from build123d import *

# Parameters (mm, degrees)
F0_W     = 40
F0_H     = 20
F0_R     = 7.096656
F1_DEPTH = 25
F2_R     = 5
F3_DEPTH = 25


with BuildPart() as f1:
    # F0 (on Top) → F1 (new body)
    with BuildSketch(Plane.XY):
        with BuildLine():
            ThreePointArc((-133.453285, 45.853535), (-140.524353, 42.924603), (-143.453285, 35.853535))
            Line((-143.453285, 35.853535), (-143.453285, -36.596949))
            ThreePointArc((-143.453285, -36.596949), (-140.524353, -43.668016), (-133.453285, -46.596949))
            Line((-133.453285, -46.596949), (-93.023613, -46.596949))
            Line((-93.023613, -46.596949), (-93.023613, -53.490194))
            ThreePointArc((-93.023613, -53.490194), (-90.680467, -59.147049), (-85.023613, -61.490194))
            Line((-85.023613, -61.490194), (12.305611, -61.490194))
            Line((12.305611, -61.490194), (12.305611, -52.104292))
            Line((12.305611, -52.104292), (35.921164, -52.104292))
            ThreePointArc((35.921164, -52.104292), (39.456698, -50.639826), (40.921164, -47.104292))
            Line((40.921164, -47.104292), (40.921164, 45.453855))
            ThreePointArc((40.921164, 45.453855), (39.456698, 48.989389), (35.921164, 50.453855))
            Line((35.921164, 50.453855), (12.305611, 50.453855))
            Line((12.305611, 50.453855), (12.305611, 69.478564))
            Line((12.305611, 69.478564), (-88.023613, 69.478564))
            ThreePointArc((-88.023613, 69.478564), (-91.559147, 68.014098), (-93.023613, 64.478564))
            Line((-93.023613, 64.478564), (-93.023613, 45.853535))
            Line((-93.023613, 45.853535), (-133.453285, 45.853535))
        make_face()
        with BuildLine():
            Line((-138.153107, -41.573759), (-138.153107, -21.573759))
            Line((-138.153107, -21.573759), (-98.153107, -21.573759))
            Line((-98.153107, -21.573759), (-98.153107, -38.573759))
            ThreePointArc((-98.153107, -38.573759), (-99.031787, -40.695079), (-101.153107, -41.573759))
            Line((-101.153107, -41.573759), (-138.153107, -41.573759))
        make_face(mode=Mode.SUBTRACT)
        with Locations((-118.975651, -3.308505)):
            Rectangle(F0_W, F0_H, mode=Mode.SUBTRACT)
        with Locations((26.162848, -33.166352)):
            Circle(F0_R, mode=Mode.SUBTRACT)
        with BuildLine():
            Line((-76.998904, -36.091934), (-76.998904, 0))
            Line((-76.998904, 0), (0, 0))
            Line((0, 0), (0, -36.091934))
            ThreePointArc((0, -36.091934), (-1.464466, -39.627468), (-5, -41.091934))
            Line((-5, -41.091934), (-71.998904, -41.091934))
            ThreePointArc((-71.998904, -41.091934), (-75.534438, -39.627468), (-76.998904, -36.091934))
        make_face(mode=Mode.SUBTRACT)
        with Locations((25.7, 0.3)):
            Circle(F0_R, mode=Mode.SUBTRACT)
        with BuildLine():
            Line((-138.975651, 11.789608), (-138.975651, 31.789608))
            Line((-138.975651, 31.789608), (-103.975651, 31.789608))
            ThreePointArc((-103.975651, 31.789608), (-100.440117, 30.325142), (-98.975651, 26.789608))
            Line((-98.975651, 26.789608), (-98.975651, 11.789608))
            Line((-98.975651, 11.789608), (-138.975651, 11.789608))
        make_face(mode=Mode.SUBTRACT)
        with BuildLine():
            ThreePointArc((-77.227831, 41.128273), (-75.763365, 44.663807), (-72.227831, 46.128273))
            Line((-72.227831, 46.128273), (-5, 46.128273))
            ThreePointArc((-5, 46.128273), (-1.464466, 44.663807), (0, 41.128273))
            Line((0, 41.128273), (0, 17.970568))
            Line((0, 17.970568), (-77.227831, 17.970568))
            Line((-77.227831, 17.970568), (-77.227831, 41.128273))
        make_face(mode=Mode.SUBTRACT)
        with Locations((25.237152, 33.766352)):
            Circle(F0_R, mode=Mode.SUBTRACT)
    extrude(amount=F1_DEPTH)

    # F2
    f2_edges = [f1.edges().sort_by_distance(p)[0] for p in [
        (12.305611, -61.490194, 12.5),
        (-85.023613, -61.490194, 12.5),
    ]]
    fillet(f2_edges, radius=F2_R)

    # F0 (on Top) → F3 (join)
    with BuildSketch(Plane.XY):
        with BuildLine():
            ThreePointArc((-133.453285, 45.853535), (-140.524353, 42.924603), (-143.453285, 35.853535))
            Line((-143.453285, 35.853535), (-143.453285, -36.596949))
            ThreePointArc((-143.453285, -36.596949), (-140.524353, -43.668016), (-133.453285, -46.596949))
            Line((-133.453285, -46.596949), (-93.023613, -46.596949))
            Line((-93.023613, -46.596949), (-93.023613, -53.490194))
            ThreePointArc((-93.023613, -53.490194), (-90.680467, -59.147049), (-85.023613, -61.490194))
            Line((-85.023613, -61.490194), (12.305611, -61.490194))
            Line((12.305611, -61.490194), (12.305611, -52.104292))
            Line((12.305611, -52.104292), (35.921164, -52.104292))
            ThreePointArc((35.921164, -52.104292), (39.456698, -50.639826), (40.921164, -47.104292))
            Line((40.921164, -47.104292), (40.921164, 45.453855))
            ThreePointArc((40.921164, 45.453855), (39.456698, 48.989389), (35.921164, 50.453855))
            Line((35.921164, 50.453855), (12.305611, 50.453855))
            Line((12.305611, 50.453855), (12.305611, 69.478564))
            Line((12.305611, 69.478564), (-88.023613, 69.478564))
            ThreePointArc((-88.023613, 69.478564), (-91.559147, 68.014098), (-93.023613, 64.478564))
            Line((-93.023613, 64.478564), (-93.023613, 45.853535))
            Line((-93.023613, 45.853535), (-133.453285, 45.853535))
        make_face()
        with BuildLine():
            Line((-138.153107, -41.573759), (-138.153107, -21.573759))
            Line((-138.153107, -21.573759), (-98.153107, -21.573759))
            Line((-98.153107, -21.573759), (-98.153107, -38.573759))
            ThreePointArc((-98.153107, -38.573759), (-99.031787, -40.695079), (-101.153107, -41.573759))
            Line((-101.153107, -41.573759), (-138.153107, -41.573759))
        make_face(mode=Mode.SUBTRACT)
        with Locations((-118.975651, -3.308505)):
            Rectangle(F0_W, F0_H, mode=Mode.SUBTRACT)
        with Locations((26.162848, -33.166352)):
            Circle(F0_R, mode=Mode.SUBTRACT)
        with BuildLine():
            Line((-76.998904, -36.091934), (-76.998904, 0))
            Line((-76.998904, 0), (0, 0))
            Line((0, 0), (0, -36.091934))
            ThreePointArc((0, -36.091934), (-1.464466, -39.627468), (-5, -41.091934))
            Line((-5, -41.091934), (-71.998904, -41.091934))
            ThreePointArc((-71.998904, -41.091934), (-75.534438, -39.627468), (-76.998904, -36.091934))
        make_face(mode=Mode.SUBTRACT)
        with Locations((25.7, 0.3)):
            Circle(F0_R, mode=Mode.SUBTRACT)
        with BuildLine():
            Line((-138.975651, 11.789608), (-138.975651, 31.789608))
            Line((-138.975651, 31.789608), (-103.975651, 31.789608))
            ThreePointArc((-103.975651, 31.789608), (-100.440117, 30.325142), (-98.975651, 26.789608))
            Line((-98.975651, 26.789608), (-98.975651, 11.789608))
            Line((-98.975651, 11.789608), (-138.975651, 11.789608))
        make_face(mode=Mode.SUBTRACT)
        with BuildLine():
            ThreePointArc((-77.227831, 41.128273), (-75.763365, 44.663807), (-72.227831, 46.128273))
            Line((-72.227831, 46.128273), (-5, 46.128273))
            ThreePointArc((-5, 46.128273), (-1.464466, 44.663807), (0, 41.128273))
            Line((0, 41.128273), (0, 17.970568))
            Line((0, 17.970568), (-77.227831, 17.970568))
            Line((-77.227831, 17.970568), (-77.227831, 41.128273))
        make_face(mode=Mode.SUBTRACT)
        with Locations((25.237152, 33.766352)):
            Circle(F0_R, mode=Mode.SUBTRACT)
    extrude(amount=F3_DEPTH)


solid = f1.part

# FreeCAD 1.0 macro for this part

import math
import FreeCAD as App
import Part
import Sketcher
Q = App.Units.Quantity


def edges_at(feature, points):
    """Names of the edges that pass closest to the given points."""
    edges = feature.Shape.Edges
    near = lambda p: min(range(len(edges)), key=lambda i: edges[i].distToShape(Part.Vertex(*p))[0])
    return sorted({f"Edge{near(p) + 1}" for p in points})

doc = App.newDocument("Part")
body = doc.addObject("PartDesign::Body", "Body")

sketch1 = doc.addObject("Sketcher::SketchObject", "Sketch")
body.addObject(sketch1)
sketch1.AttachmentSupport = (doc.XY_Plane, [""])
sketch1.MapMode = "FlatFace"
sketch1.addGeometry(Part.ArcOfCircle(Part.Circle(App.Vector(-133.5, 35.9, 0), App.Vector(0, 0, 1), 10), math.radians(90), math.radians(180)), False)
sketch1.addGeometry(Part.LineSegment(App.Vector(-143.5, 35.9, 0), App.Vector(-143.5, -36.6, 0)), False)
sketch1.addGeometry(Part.ArcOfCircle(Part.Circle(App.Vector(-133.5, -36.6, 0), App.Vector(0, 0, 1), 10), math.radians(-180), math.radians(-90)), False)
sketch1.addGeometry(Part.LineSegment(App.Vector(-133.5, -46.6, 0), App.Vector(-93, -46.6, 0)), False)
sketch1.addGeometry(Part.LineSegment(App.Vector(-93, -46.6, 0), App.Vector(-93, -53.5, 0)), False)
sketch1.addGeometry(Part.ArcOfCircle(Part.Circle(App.Vector(-85, -53.5, 0), App.Vector(0, 0, 1), 8), math.radians(180), math.radians(270)), False)
sketch1.addGeometry(Part.LineSegment(App.Vector(-85, -61.5, 0), App.Vector(12.3, -61.5, 0)), False)
sketch1.addGeometry(Part.LineSegment(App.Vector(12.3, -61.5, 0), App.Vector(12.3, -52.1, 0)), False)
sketch1.addGeometry(Part.LineSegment(App.Vector(12.3, -52.1, 0), App.Vector(35.9, -52.1, 0)), False)
sketch1.addGeometry(Part.ArcOfCircle(Part.Circle(App.Vector(35.9, -47.1, 0), App.Vector(0, 0, 1), 5), math.radians(-90), math.radians(0)), False)
sketch1.addGeometry(Part.LineSegment(App.Vector(40.9, -47.1, 0), App.Vector(40.9, 45.5, 0)), False)
sketch1.addGeometry(Part.ArcOfCircle(Part.Circle(App.Vector(35.9, 45.5, 0), App.Vector(0, 0, 1), 5), math.radians(0), math.radians(90)), False)
sketch1.addGeometry(Part.LineSegment(App.Vector(35.9, 50.5, 0), App.Vector(12.3, 50.5, 0)), False)
sketch1.addGeometry(Part.LineSegment(App.Vector(12.3, 50.5, 0), App.Vector(12.3, 69.5, 0)), False)
sketch1.addGeometry(Part.LineSegment(App.Vector(12.3, 69.5, 0), App.Vector(-88, 69.5, 0)), False)
sketch1.addGeometry(Part.ArcOfCircle(Part.Circle(App.Vector(-88, 64.5, 0), App.Vector(0, 0, 1), 5), math.radians(90), math.radians(180)), False)
sketch1.addGeometry(Part.LineSegment(App.Vector(-93, 64.5, 0), App.Vector(-93, 45.9, 0)), False)
sketch1.addGeometry(Part.LineSegment(App.Vector(-93, 45.9, 0), App.Vector(-133.5, 45.9, 0)), False)
sketch1.addGeometry(Part.LineSegment(App.Vector(-101.2, -41.6, 0), App.Vector(-138.2, -41.6, 0)), False)
sketch1.addGeometry(Part.LineSegment(App.Vector(-138.2, -41.6, 0), App.Vector(-138.2, -21.6, 0)), False)
sketch1.addGeometry(Part.LineSegment(App.Vector(-138.2, -21.6, 0), App.Vector(-98.2, -21.6, 0)), False)
sketch1.addGeometry(Part.LineSegment(App.Vector(-98.2, -21.6, 0), App.Vector(-98.2, -38.6, 0)), False)
sketch1.addGeometry(Part.ArcOfCircle(Part.Circle(App.Vector(-101.2, -38.6, 0), App.Vector(0, 0, 1), 3), math.radians(-90), math.radians(0)), False)
sketch1.addGeometry(Part.LineSegment(App.Vector(-99, -13.3, 0), App.Vector(-139, -13.3, 0)), False)
sketch1.addGeometry(Part.LineSegment(App.Vector(-139, -13.3, 0), App.Vector(-139, 6.7, 0)), False)
sketch1.addGeometry(Part.LineSegment(App.Vector(-139, 6.7, 0), App.Vector(-99, 6.7, 0)), False)
sketch1.addGeometry(Part.LineSegment(App.Vector(-99, 6.7, 0), App.Vector(-99, -13.3, 0)), False)
sketch1.addGeometry(Part.ArcOfCircle(Part.Circle(App.Vector(-72, -36.1, 0), App.Vector(0, 0, 1), 5), math.radians(180), math.radians(270)), False)
sketch1.addGeometry(Part.LineSegment(App.Vector(-77, -36.1, 0), App.Vector(-77, 0, 0)), False)
sketch1.addGeometry(Part.LineSegment(App.Vector(-77, 0, 0), App.Vector(0, 0, 0)), False)
sketch1.addGeometry(Part.LineSegment(App.Vector(0, 0, 0), App.Vector(0, -36.1, 0)), False)
sketch1.addGeometry(Part.ArcOfCircle(Part.Circle(App.Vector(-5, -36.1, 0), App.Vector(0, 0, 1), 5), math.radians(-90), math.radians(0)), False)
sketch1.addGeometry(Part.LineSegment(App.Vector(-5, -41.1, 0), App.Vector(-72, -41.1, 0)), False)
sketch1.addGeometry(Part.Circle(App.Vector(26.2, -33.2, 0), App.Vector(0, 0, 1), 7.1), False)
sketch1.addGeometry(Part.Circle(App.Vector(25.7, 0.3, 0), App.Vector(0, 0, 1), 7.1), False)
sketch1.addGeometry(Part.LineSegment(App.Vector(-99, 11.8, 0), App.Vector(-139, 11.8, 0)), False)
sketch1.addGeometry(Part.LineSegment(App.Vector(-139, 11.8, 0), App.Vector(-139, 31.8, 0)), False)
sketch1.addGeometry(Part.LineSegment(App.Vector(-139, 31.8, 0), App.Vector(-104, 31.8, 0)), False)
sketch1.addGeometry(Part.ArcOfCircle(Part.Circle(App.Vector(-104, 26.8, 0), App.Vector(0, 0, 1), 5), math.radians(0), math.radians(90)), False)
sketch1.addGeometry(Part.LineSegment(App.Vector(-99, 26.8, 0), App.Vector(-99, 11.8, 0)), False)
sketch1.addGeometry(Part.LineSegment(App.Vector(-77.2, 18, 0), App.Vector(-77.2, 41.1, 0)), False)
sketch1.addGeometry(Part.ArcOfCircle(Part.Circle(App.Vector(-72.2, 41.1, 0), App.Vector(0, 0, 1), 5), math.radians(90), math.radians(180)), False)
sketch1.addGeometry(Part.LineSegment(App.Vector(-72.2, 46.1, 0), App.Vector(-5, 46.1, 0)), False)
sketch1.addGeometry(Part.ArcOfCircle(Part.Circle(App.Vector(-5, 41.1, 0), App.Vector(0, 0, 1), 5), math.radians(0), math.radians(90)), False)
sketch1.addGeometry(Part.LineSegment(App.Vector(0, 41.1, 0), App.Vector(0, 18, 0)), False)
sketch1.addGeometry(Part.LineSegment(App.Vector(0, 18, 0), App.Vector(-77.2, 18, 0)), False)
sketch1.addGeometry(Part.Circle(App.Vector(25.2, 33.8, 0), App.Vector(0, 0, 1), 7.1), False)
sketch1.addConstraint(Sketcher.Constraint("Tangent", 0, 2, 1, 1))
sketch1.addConstraint(Sketcher.Constraint("Tangent", 1, 2, 2, 1))
sketch1.addConstraint(Sketcher.Constraint("Tangent", 2, 2, 3, 1))
sketch1.addConstraint(Sketcher.Constraint("Coincident", 3, 2, 4, 1))
sketch1.addConstraint(Sketcher.Constraint("Tangent", 4, 2, 5, 1))
sketch1.addConstraint(Sketcher.Constraint("Tangent", 5, 2, 6, 1))
sketch1.addConstraint(Sketcher.Constraint("Coincident", 6, 2, 7, 1))
sketch1.addConstraint(Sketcher.Constraint("Coincident", 7, 2, 8, 1))
sketch1.addConstraint(Sketcher.Constraint("Tangent", 8, 2, 9, 1))
sketch1.addConstraint(Sketcher.Constraint("Tangent", 9, 2, 10, 1))
sketch1.addConstraint(Sketcher.Constraint("Tangent", 10, 2, 11, 1))
sketch1.addConstraint(Sketcher.Constraint("Tangent", 11, 2, 12, 1))
sketch1.addConstraint(Sketcher.Constraint("Coincident", 12, 2, 13, 1))
sketch1.addConstraint(Sketcher.Constraint("Coincident", 13, 2, 14, 1))
sketch1.addConstraint(Sketcher.Constraint("Tangent", 14, 2, 15, 1))
sketch1.addConstraint(Sketcher.Constraint("Tangent", 15, 2, 16, 1))
sketch1.addConstraint(Sketcher.Constraint("Coincident", 16, 2, 17, 1))
sketch1.addConstraint(Sketcher.Constraint("Tangent", 17, 2, 0, 1))
sketch1.addConstraint(Sketcher.Constraint("Coincident", 18, 2, 19, 1))
sketch1.addConstraint(Sketcher.Constraint("Coincident", 19, 2, 20, 1))
sketch1.addConstraint(Sketcher.Constraint("Coincident", 20, 2, 21, 1))
sketch1.addConstraint(Sketcher.Constraint("Tangent", 21, 2, 22, 2))
sketch1.addConstraint(Sketcher.Constraint("Tangent", 22, 1, 18, 1))
sketch1.addConstraint(Sketcher.Constraint("Coincident", 23, 2, 24, 1))
sketch1.addConstraint(Sketcher.Constraint("Coincident", 24, 2, 25, 1))
sketch1.addConstraint(Sketcher.Constraint("Coincident", 25, 2, 26, 1))
sketch1.addConstraint(Sketcher.Constraint("Coincident", 26, 2, 23, 1))
sketch1.addConstraint(Sketcher.Constraint("Tangent", 27, 1, 28, 1))
sketch1.addConstraint(Sketcher.Constraint("Coincident", 28, 2, 29, 1))
sketch1.addConstraint(Sketcher.Constraint("Coincident", 29, 2, 30, 1))
sketch1.addConstraint(Sketcher.Constraint("Tangent", 30, 2, 31, 2))
sketch1.addConstraint(Sketcher.Constraint("Tangent", 31, 1, 32, 1))
sketch1.addConstraint(Sketcher.Constraint("Tangent", 32, 2, 27, 2))
sketch1.addConstraint(Sketcher.Constraint("Coincident", 35, 2, 36, 1))
sketch1.addConstraint(Sketcher.Constraint("Coincident", 36, 2, 37, 1))
sketch1.addConstraint(Sketcher.Constraint("Tangent", 37, 2, 38, 2))
sketch1.addConstraint(Sketcher.Constraint("Tangent", 38, 1, 39, 1))
sketch1.addConstraint(Sketcher.Constraint("Coincident", 39, 2, 35, 1))
sketch1.addConstraint(Sketcher.Constraint("Tangent", 40, 2, 41, 2))
sketch1.addConstraint(Sketcher.Constraint("Tangent", 41, 1, 42, 1))
sketch1.addConstraint(Sketcher.Constraint("Tangent", 42, 2, 43, 2))
sketch1.addConstraint(Sketcher.Constraint("Tangent", 43, 1, 44, 1))
sketch1.addConstraint(Sketcher.Constraint("Coincident", 44, 2, 45, 1))
sketch1.addConstraint(Sketcher.Constraint("Coincident", 45, 2, 40, 1))
sketch1.addConstraint(Sketcher.Constraint("Vertical", 1))
sketch1.addConstraint(Sketcher.Constraint("Horizontal", 3))
sketch1.addConstraint(Sketcher.Constraint("Vertical", 4))
sketch1.addConstraint(Sketcher.Constraint("Horizontal", 6))
sketch1.addConstraint(Sketcher.Constraint("Vertical", 7))
sketch1.addConstraint(Sketcher.Constraint("Horizontal", 8))
sketch1.addConstraint(Sketcher.Constraint("Vertical", 10))
sketch1.addConstraint(Sketcher.Constraint("Horizontal", 12))
sketch1.addConstraint(Sketcher.Constraint("Vertical", 13))
sketch1.addConstraint(Sketcher.Constraint("Horizontal", 14))
sketch1.addConstraint(Sketcher.Constraint("Vertical", 16))
sketch1.addConstraint(Sketcher.Constraint("Horizontal", 17))
sketch1.addConstraint(Sketcher.Constraint("Horizontal", 18))
sketch1.addConstraint(Sketcher.Constraint("Vertical", 19))
sketch1.addConstraint(Sketcher.Constraint("Horizontal", 20))
sketch1.addConstraint(Sketcher.Constraint("Vertical", 21))
sketch1.addConstraint(Sketcher.Constraint("Horizontal", 23))
sketch1.addConstraint(Sketcher.Constraint("Vertical", 24))
sketch1.addConstraint(Sketcher.Constraint("Horizontal", 25))
sketch1.addConstraint(Sketcher.Constraint("Vertical", 26))
sketch1.addConstraint(Sketcher.Constraint("Vertical", 28))
sketch1.addConstraint(Sketcher.Constraint("Horizontal", 29))
sketch1.addConstraint(Sketcher.Constraint("Vertical", 30))
sketch1.addConstraint(Sketcher.Constraint("Horizontal", 32))
sketch1.addConstraint(Sketcher.Constraint("Horizontal", 35))
sketch1.addConstraint(Sketcher.Constraint("Vertical", 36))
sketch1.addConstraint(Sketcher.Constraint("Horizontal", 37))
sketch1.addConstraint(Sketcher.Constraint("Vertical", 39))
sketch1.addConstraint(Sketcher.Constraint("Vertical", 40))
sketch1.addConstraint(Sketcher.Constraint("Horizontal", 42))
sketch1.addConstraint(Sketcher.Constraint("Vertical", 44))
sketch1.addConstraint(Sketcher.Constraint("Horizontal", 45))
sketch1.addConstraint(Sketcher.Constraint("Coincident", 29, 2, -1, 1))
sketch1.addConstraint(Sketcher.Constraint("Equal", 0, 2))
sketch1.addConstraint(Sketcher.Constraint("Equal", 9, 11))
sketch1.addConstraint(Sketcher.Constraint("Equal", 11, 15))
sketch1.addConstraint(Sketcher.Constraint("Equal", 15, 27))
sketch1.addConstraint(Sketcher.Constraint("Equal", 27, 31))
sketch1.addConstraint(Sketcher.Constraint("Equal", 33, 34))
sketch1.addConstraint(Sketcher.Constraint("Equal", 31, 38))
sketch1.addConstraint(Sketcher.Constraint("Equal", 38, 41))
sketch1.addConstraint(Sketcher.Constraint("Equal", 41, 43))
sketch1.addConstraint(Sketcher.Constraint("Equal", 34, 46))
sketch1.addConstraint(Sketcher.Constraint("PointOnObject", 43, 1, -2))
sketch1.addConstraint(Sketcher.Constraint("Vertical", 7, 2, 12, 2))
sketch1.addConstraint(Sketcher.Constraint("Vertical", 4, 2, 15, 2))
sketch1.addConstraint(Sketcher.Constraint("Vertical", 24, 2, 35, 2))
sketch1.addConstraint(Sketcher.Constraint("Vertical", 26, 2, 38, 1))
sketch1.addConstraint(Sketcher.Constraint("Equal", 20, 23))
sketch1.addConstraint(Sketcher.Constraint("Equal", 19, 24))
sketch1.addConstraint(Sketcher.Constraint("Equal", 26, 36))
sketch1.addConstraint(Sketcher.Constraint("Radius", 0, Q("9.999999 mm")))
sketch1.addConstraint(Sketcher.Constraint("Radius", 5, Q("7.999999 mm")))
sketch1.addConstraint(Sketcher.Constraint("Radius", 9, Q("5 mm")))
sketch1.addConstraint(Sketcher.Constraint("Radius", 22, Q("3.000001 mm")))
sketch1.addConstraint(Sketcher.Constraint("DistanceX", 18, 2, 18, 1, Q("37 mm")))
sketch1.addConstraint(Sketcher.Constraint("DistanceY", 19, 1, 19, 2, Q("20 mm")))
sketch1.addConstraint(Sketcher.Constraint("DistanceX", -1, 1, 34, 3, Q("25.7 mm")))
sketch1.addConstraint(Sketcher.Constraint("DistanceY", -1, 1, 34, 3, Q("0.3 mm")))
sketch1.addConstraint(Sketcher.Constraint("Diameter", 33, Q("14.193312 mm")))
sketch1.addConstraint(Sketcher.Constraint("DistanceX", 3, 1, 3, 2, Q("40.429672 mm")))
sketch1.addConstraint(Sketcher.Constraint("DistanceX", 42, 1, 42, 2, Q("67.227831 mm")))
sketch1.addConstraint(Sketcher.Constraint("DistanceY", 13, 1, 13, 2, Q("19.024709 mm")))
sketch1.addConstraint(Sketcher.Constraint("DistanceY", 16, 2, 16, 1, Q("18.625029 mm")))
sketch1.addConstraint(Sketcher.Constraint("DistanceY", 27, 3, 15, 3, Q("100.570499 mm")))
sketch1.addConstraint(Sketcher.Constraint("DistanceY", 6, 2, 9, 3, Q("14.385902 mm")))
sketch1.addConstraint(Sketcher.Constraint("DistanceX", 6, 1, 6, 2, Q("97.329224 mm")))
sketch1.addConstraint(Sketcher.Constraint("DistanceX", 8, 1, 8, 2, Q("23.615553 mm")))
sketch1.addConstraint(Sketcher.Constraint("DistanceX", 29, 1, 29, 2, Q("76.998904 mm")))
sketch1.addConstraint(Sketcher.Constraint("DistanceY", 1, 2, 1, 1, Q("72.450484 mm")))
sketch1.addConstraint(Sketcher.Constraint("DistanceY", 4, 2, 4, 1, Q("6.893245 mm")))
sketch1.addConstraint(Sketcher.Constraint("DistanceY", 28, 1, 28, 2, Q("36.091934 mm")))
sketch1.addConstraint(Sketcher.Constraint("DistanceY", 40, 1, 40, 2, Q("23.157705 mm")))
sketch1.addConstraint(Sketcher.Constraint("DistanceX", 22, 3, -1, 1, Q("101.153108 mm")))
sketch1.addConstraint(Sketcher.Constraint("DistanceX", -1, 1, 33, 3, Q("26.162848 mm")))
sketch1.addConstraint(Sketcher.Constraint("DistanceX", 38, 3, -1, 1, Q("103.975651 mm")))
sketch1.addConstraint(Sketcher.Constraint("DistanceY", -1, 1, 38, 3, Q("26.789608 mm")))
sketch1.addConstraint(Sketcher.Constraint("DistanceX", -1, 1, 46, 3, Q("25.237152 mm")))
sketch1.addConstraint(Sketcher.Constraint("DistanceY", -1, 1, 46, 3, Q("33.766352 mm")))
sketch1.addConstraint(Sketcher.Constraint("DistanceX", -1, 1, 6, 2, Q("12.305611 mm")))
sketch1.addConstraint(Sketcher.Constraint("DistanceY", 18, 2, -1, 1, Q("41.573759 mm")))
sketch1.addConstraint(Sketcher.Constraint("DistanceY", -1, 1, 44, 2, Q("17.970568 mm")))
sketch1.addConstraint(Sketcher.Constraint("DistanceY", 9, 3, 33, 3, Q("13.93794 mm")))
sketch1.addConstraint(Sketcher.Constraint("DistanceY", 24, 2, 0, 2, Q("29.16204 mm")))
pad1 = doc.addObject("PartDesign::Pad", "Pad")
body.addObject(pad1)
pad1.Profile = sketch1
pad1.Length = 25
doc.recompute()

fillet = doc.addObject("PartDesign::Fillet", "Fillet")
body.addObject(fillet)
fillet.Base = (pad1, edges_at(pad1, [(12.306, -61.49, 12.5), (-85.024, -61.49, 12.5)]))
fillet.Radius = 5

sketch2 = doc.addObject("Sketcher::SketchObject", "Sketch001")
body.addObject(sketch2)
sketch2.AttachmentSupport = (doc.XY_Plane, [""])
sketch2.MapMode = "FlatFace"
sketch2.addGeometry(Part.ArcOfCircle(Part.Circle(App.Vector(-133.5, 35.9, 0), App.Vector(0, 0, 1), 10), math.radians(90), math.radians(180)), False)
sketch2.addGeometry(Part.LineSegment(App.Vector(-143.5, 35.9, 0), App.Vector(-143.5, -36.6, 0)), False)
sketch2.addGeometry(Part.ArcOfCircle(Part.Circle(App.Vector(-133.5, -36.6, 0), App.Vector(0, 0, 1), 10), math.radians(-180), math.radians(-90)), False)
sketch2.addGeometry(Part.LineSegment(App.Vector(-133.5, -46.6, 0), App.Vector(-93, -46.6, 0)), False)
sketch2.addGeometry(Part.LineSegment(App.Vector(-93, -46.6, 0), App.Vector(-93, -53.5, 0)), False)
sketch2.addGeometry(Part.ArcOfCircle(Part.Circle(App.Vector(-85, -53.5, 0), App.Vector(0, 0, 1), 8), math.radians(180), math.radians(270)), False)
sketch2.addGeometry(Part.LineSegment(App.Vector(-85, -61.5, 0), App.Vector(12.3, -61.5, 0)), False)
sketch2.addGeometry(Part.LineSegment(App.Vector(12.3, -61.5, 0), App.Vector(12.3, -52.1, 0)), False)
sketch2.addGeometry(Part.LineSegment(App.Vector(12.3, -52.1, 0), App.Vector(35.9, -52.1, 0)), False)
sketch2.addGeometry(Part.ArcOfCircle(Part.Circle(App.Vector(35.9, -47.1, 0), App.Vector(0, 0, 1), 5), math.radians(-90), math.radians(0)), False)
sketch2.addGeometry(Part.LineSegment(App.Vector(40.9, -47.1, 0), App.Vector(40.9, 45.5, 0)), False)
sketch2.addGeometry(Part.ArcOfCircle(Part.Circle(App.Vector(35.9, 45.5, 0), App.Vector(0, 0, 1), 5), math.radians(0), math.radians(90)), False)
sketch2.addGeometry(Part.LineSegment(App.Vector(35.9, 50.5, 0), App.Vector(12.3, 50.5, 0)), False)
sketch2.addGeometry(Part.LineSegment(App.Vector(12.3, 50.5, 0), App.Vector(12.3, 69.5, 0)), False)
sketch2.addGeometry(Part.LineSegment(App.Vector(12.3, 69.5, 0), App.Vector(-88, 69.5, 0)), False)
sketch2.addGeometry(Part.ArcOfCircle(Part.Circle(App.Vector(-88, 64.5, 0), App.Vector(0, 0, 1), 5), math.radians(90), math.radians(180)), False)
sketch2.addGeometry(Part.LineSegment(App.Vector(-93, 64.5, 0), App.Vector(-93, 45.9, 0)), False)
sketch2.addGeometry(Part.LineSegment(App.Vector(-93, 45.9, 0), App.Vector(-133.5, 45.9, 0)), False)
sketch2.addGeometry(Part.LineSegment(App.Vector(-101.2, -41.6, 0), App.Vector(-138.2, -41.6, 0)), False)
sketch2.addGeometry(Part.LineSegment(App.Vector(-138.2, -41.6, 0), App.Vector(-138.2, -21.6, 0)), False)
sketch2.addGeometry(Part.LineSegment(App.Vector(-138.2, -21.6, 0), App.Vector(-98.2, -21.6, 0)), False)
sketch2.addGeometry(Part.LineSegment(App.Vector(-98.2, -21.6, 0), App.Vector(-98.2, -38.6, 0)), False)
sketch2.addGeometry(Part.ArcOfCircle(Part.Circle(App.Vector(-101.2, -38.6, 0), App.Vector(0, 0, 1), 3), math.radians(-90), math.radians(0)), False)
sketch2.addGeometry(Part.LineSegment(App.Vector(-99, -13.3, 0), App.Vector(-139, -13.3, 0)), False)
sketch2.addGeometry(Part.LineSegment(App.Vector(-139, -13.3, 0), App.Vector(-139, 6.7, 0)), False)
sketch2.addGeometry(Part.LineSegment(App.Vector(-139, 6.7, 0), App.Vector(-99, 6.7, 0)), False)
sketch2.addGeometry(Part.LineSegment(App.Vector(-99, 6.7, 0), App.Vector(-99, -13.3, 0)), False)
sketch2.addGeometry(Part.ArcOfCircle(Part.Circle(App.Vector(-72, -36.1, 0), App.Vector(0, 0, 1), 5), math.radians(180), math.radians(270)), False)
sketch2.addGeometry(Part.LineSegment(App.Vector(-77, -36.1, 0), App.Vector(-77, 0, 0)), False)
sketch2.addGeometry(Part.LineSegment(App.Vector(-77, 0, 0), App.Vector(0, 0, 0)), False)
sketch2.addGeometry(Part.LineSegment(App.Vector(0, 0, 0), App.Vector(0, -36.1, 0)), False)
sketch2.addGeometry(Part.ArcOfCircle(Part.Circle(App.Vector(-5, -36.1, 0), App.Vector(0, 0, 1), 5), math.radians(-90), math.radians(0)), False)
sketch2.addGeometry(Part.LineSegment(App.Vector(-5, -41.1, 0), App.Vector(-72, -41.1, 0)), False)
sketch2.addGeometry(Part.Circle(App.Vector(26.2, -33.2, 0), App.Vector(0, 0, 1), 7.1), False)
sketch2.addGeometry(Part.Circle(App.Vector(25.7, 0.3, 0), App.Vector(0, 0, 1), 7.1), False)
sketch2.addGeometry(Part.LineSegment(App.Vector(-99, 11.8, 0), App.Vector(-139, 11.8, 0)), False)
sketch2.addGeometry(Part.LineSegment(App.Vector(-139, 11.8, 0), App.Vector(-139, 31.8, 0)), False)
sketch2.addGeometry(Part.LineSegment(App.Vector(-139, 31.8, 0), App.Vector(-104, 31.8, 0)), False)
sketch2.addGeometry(Part.ArcOfCircle(Part.Circle(App.Vector(-104, 26.8, 0), App.Vector(0, 0, 1), 5), math.radians(0), math.radians(90)), False)
sketch2.addGeometry(Part.LineSegment(App.Vector(-99, 26.8, 0), App.Vector(-99, 11.8, 0)), False)
sketch2.addGeometry(Part.LineSegment(App.Vector(-77.2, 18, 0), App.Vector(-77.2, 41.1, 0)), False)
sketch2.addGeometry(Part.ArcOfCircle(Part.Circle(App.Vector(-72.2, 41.1, 0), App.Vector(0, 0, 1), 5), math.radians(90), math.radians(180)), False)
sketch2.addGeometry(Part.LineSegment(App.Vector(-72.2, 46.1, 0), App.Vector(-5, 46.1, 0)), False)
sketch2.addGeometry(Part.ArcOfCircle(Part.Circle(App.Vector(-5, 41.1, 0), App.Vector(0, 0, 1), 5), math.radians(0), math.radians(90)), False)
sketch2.addGeometry(Part.LineSegment(App.Vector(0, 41.1, 0), App.Vector(0, 18, 0)), False)
sketch2.addGeometry(Part.LineSegment(App.Vector(0, 18, 0), App.Vector(-77.2, 18, 0)), False)
sketch2.addGeometry(Part.Circle(App.Vector(25.2, 33.8, 0), App.Vector(0, 0, 1), 7.1), False)
sketch2.addConstraint(Sketcher.Constraint("Tangent", 0, 2, 1, 1))
sketch2.addConstraint(Sketcher.Constraint("Tangent", 1, 2, 2, 1))
sketch2.addConstraint(Sketcher.Constraint("Tangent", 2, 2, 3, 1))
sketch2.addConstraint(Sketcher.Constraint("Coincident", 3, 2, 4, 1))
sketch2.addConstraint(Sketcher.Constraint("Tangent", 4, 2, 5, 1))
sketch2.addConstraint(Sketcher.Constraint("Tangent", 5, 2, 6, 1))
sketch2.addConstraint(Sketcher.Constraint("Coincident", 6, 2, 7, 1))
sketch2.addConstraint(Sketcher.Constraint("Coincident", 7, 2, 8, 1))
sketch2.addConstraint(Sketcher.Constraint("Tangent", 8, 2, 9, 1))
sketch2.addConstraint(Sketcher.Constraint("Tangent", 9, 2, 10, 1))
sketch2.addConstraint(Sketcher.Constraint("Tangent", 10, 2, 11, 1))
sketch2.addConstraint(Sketcher.Constraint("Tangent", 11, 2, 12, 1))
sketch2.addConstraint(Sketcher.Constraint("Coincident", 12, 2, 13, 1))
sketch2.addConstraint(Sketcher.Constraint("Coincident", 13, 2, 14, 1))
sketch2.addConstraint(Sketcher.Constraint("Tangent", 14, 2, 15, 1))
sketch2.addConstraint(Sketcher.Constraint("Tangent", 15, 2, 16, 1))
sketch2.addConstraint(Sketcher.Constraint("Coincident", 16, 2, 17, 1))
sketch2.addConstraint(Sketcher.Constraint("Tangent", 17, 2, 0, 1))
sketch2.addConstraint(Sketcher.Constraint("Coincident", 18, 2, 19, 1))
sketch2.addConstraint(Sketcher.Constraint("Coincident", 19, 2, 20, 1))
sketch2.addConstraint(Sketcher.Constraint("Coincident", 20, 2, 21, 1))
sketch2.addConstraint(Sketcher.Constraint("Tangent", 21, 2, 22, 2))
sketch2.addConstraint(Sketcher.Constraint("Tangent", 22, 1, 18, 1))
sketch2.addConstraint(Sketcher.Constraint("Coincident", 23, 2, 24, 1))
sketch2.addConstraint(Sketcher.Constraint("Coincident", 24, 2, 25, 1))
sketch2.addConstraint(Sketcher.Constraint("Coincident", 25, 2, 26, 1))
sketch2.addConstraint(Sketcher.Constraint("Coincident", 26, 2, 23, 1))
sketch2.addConstraint(Sketcher.Constraint("Tangent", 27, 1, 28, 1))
sketch2.addConstraint(Sketcher.Constraint("Coincident", 28, 2, 29, 1))
sketch2.addConstraint(Sketcher.Constraint("Coincident", 29, 2, 30, 1))
sketch2.addConstraint(Sketcher.Constraint("Tangent", 30, 2, 31, 2))
sketch2.addConstraint(Sketcher.Constraint("Tangent", 31, 1, 32, 1))
sketch2.addConstraint(Sketcher.Constraint("Tangent", 32, 2, 27, 2))
sketch2.addConstraint(Sketcher.Constraint("Coincident", 35, 2, 36, 1))
sketch2.addConstraint(Sketcher.Constraint("Coincident", 36, 2, 37, 1))
sketch2.addConstraint(Sketcher.Constraint("Tangent", 37, 2, 38, 2))
sketch2.addConstraint(Sketcher.Constraint("Tangent", 38, 1, 39, 1))
sketch2.addConstraint(Sketcher.Constraint("Coincident", 39, 2, 35, 1))
sketch2.addConstraint(Sketcher.Constraint("Tangent", 40, 2, 41, 2))
sketch2.addConstraint(Sketcher.Constraint("Tangent", 41, 1, 42, 1))
sketch2.addConstraint(Sketcher.Constraint("Tangent", 42, 2, 43, 2))
sketch2.addConstraint(Sketcher.Constraint("Tangent", 43, 1, 44, 1))
sketch2.addConstraint(Sketcher.Constraint("Coincident", 44, 2, 45, 1))
sketch2.addConstraint(Sketcher.Constraint("Coincident", 45, 2, 40, 1))
sketch2.addConstraint(Sketcher.Constraint("Vertical", 1))
sketch2.addConstraint(Sketcher.Constraint("Horizontal", 3))
sketch2.addConstraint(Sketcher.Constraint("Vertical", 4))
sketch2.addConstraint(Sketcher.Constraint("Horizontal", 6))
sketch2.addConstraint(Sketcher.Constraint("Vertical", 7))
sketch2.addConstraint(Sketcher.Constraint("Horizontal", 8))
sketch2.addConstraint(Sketcher.Constraint("Vertical", 10))
sketch2.addConstraint(Sketcher.Constraint("Horizontal", 12))
sketch2.addConstraint(Sketcher.Constraint("Vertical", 13))
sketch2.addConstraint(Sketcher.Constraint("Horizontal", 14))
sketch2.addConstraint(Sketcher.Constraint("Vertical", 16))
sketch2.addConstraint(Sketcher.Constraint("Horizontal", 17))
sketch2.addConstraint(Sketcher.Constraint("Horizontal", 18))
sketch2.addConstraint(Sketcher.Constraint("Vertical", 19))
sketch2.addConstraint(Sketcher.Constraint("Horizontal", 20))
sketch2.addConstraint(Sketcher.Constraint("Vertical", 21))
sketch2.addConstraint(Sketcher.Constraint("Horizontal", 23))
sketch2.addConstraint(Sketcher.Constraint("Vertical", 24))
sketch2.addConstraint(Sketcher.Constraint("Horizontal", 25))
sketch2.addConstraint(Sketcher.Constraint("Vertical", 26))
sketch2.addConstraint(Sketcher.Constraint("Vertical", 28))
sketch2.addConstraint(Sketcher.Constraint("Horizontal", 29))
sketch2.addConstraint(Sketcher.Constraint("Vertical", 30))
sketch2.addConstraint(Sketcher.Constraint("Horizontal", 32))
sketch2.addConstraint(Sketcher.Constraint("Horizontal", 35))
sketch2.addConstraint(Sketcher.Constraint("Vertical", 36))
sketch2.addConstraint(Sketcher.Constraint("Horizontal", 37))
sketch2.addConstraint(Sketcher.Constraint("Vertical", 39))
sketch2.addConstraint(Sketcher.Constraint("Vertical", 40))
sketch2.addConstraint(Sketcher.Constraint("Horizontal", 42))
sketch2.addConstraint(Sketcher.Constraint("Vertical", 44))
sketch2.addConstraint(Sketcher.Constraint("Horizontal", 45))
sketch2.addConstraint(Sketcher.Constraint("Coincident", 29, 2, -1, 1))
sketch2.addConstraint(Sketcher.Constraint("Equal", 0, 2))
sketch2.addConstraint(Sketcher.Constraint("Equal", 9, 11))
sketch2.addConstraint(Sketcher.Constraint("Equal", 11, 15))
sketch2.addConstraint(Sketcher.Constraint("Equal", 15, 27))
sketch2.addConstraint(Sketcher.Constraint("Equal", 27, 31))
sketch2.addConstraint(Sketcher.Constraint("Equal", 33, 34))
sketch2.addConstraint(Sketcher.Constraint("Equal", 31, 38))
sketch2.addConstraint(Sketcher.Constraint("Equal", 38, 41))
sketch2.addConstraint(Sketcher.Constraint("Equal", 41, 43))
sketch2.addConstraint(Sketcher.Constraint("Equal", 34, 46))
sketch2.addConstraint(Sketcher.Constraint("PointOnObject", 43, 1, -2))
sketch2.addConstraint(Sketcher.Constraint("Vertical", 7, 2, 12, 2))
sketch2.addConstraint(Sketcher.Constraint("Vertical", 4, 2, 15, 2))
sketch2.addConstraint(Sketcher.Constraint("Vertical", 24, 2, 35, 2))
sketch2.addConstraint(Sketcher.Constraint("Vertical", 26, 2, 38, 1))
sketch2.addConstraint(Sketcher.Constraint("Equal", 20, 23))
sketch2.addConstraint(Sketcher.Constraint("Equal", 19, 24))
sketch2.addConstraint(Sketcher.Constraint("Equal", 26, 36))
sketch2.addConstraint(Sketcher.Constraint("Radius", 0, Q("9.999999 mm")))
sketch2.addConstraint(Sketcher.Constraint("Radius", 5, Q("7.999999 mm")))
sketch2.addConstraint(Sketcher.Constraint("Radius", 9, Q("5 mm")))
sketch2.addConstraint(Sketcher.Constraint("Radius", 22, Q("3.000001 mm")))
sketch2.addConstraint(Sketcher.Constraint("DistanceX", 18, 2, 18, 1, Q("37 mm")))
sketch2.addConstraint(Sketcher.Constraint("DistanceY", 19, 1, 19, 2, Q("20 mm")))
sketch2.addConstraint(Sketcher.Constraint("DistanceX", -1, 1, 34, 3, Q("25.7 mm")))
sketch2.addConstraint(Sketcher.Constraint("DistanceY", -1, 1, 34, 3, Q("0.3 mm")))
sketch2.addConstraint(Sketcher.Constraint("Diameter", 33, Q("14.193312 mm")))
sketch2.addConstraint(Sketcher.Constraint("DistanceX", 3, 1, 3, 2, Q("40.429672 mm")))
sketch2.addConstraint(Sketcher.Constraint("DistanceX", 42, 1, 42, 2, Q("67.227831 mm")))
sketch2.addConstraint(Sketcher.Constraint("DistanceY", 13, 1, 13, 2, Q("19.024709 mm")))
sketch2.addConstraint(Sketcher.Constraint("DistanceY", 16, 2, 16, 1, Q("18.625029 mm")))
sketch2.addConstraint(Sketcher.Constraint("DistanceY", 27, 3, 15, 3, Q("100.570499 mm")))
sketch2.addConstraint(Sketcher.Constraint("DistanceY", 6, 2, 9, 3, Q("14.385902 mm")))
sketch2.addConstraint(Sketcher.Constraint("DistanceX", 6, 1, 6, 2, Q("97.329224 mm")))
sketch2.addConstraint(Sketcher.Constraint("DistanceX", 8, 1, 8, 2, Q("23.615553 mm")))
sketch2.addConstraint(Sketcher.Constraint("DistanceX", 29, 1, 29, 2, Q("76.998904 mm")))
sketch2.addConstraint(Sketcher.Constraint("DistanceY", 1, 2, 1, 1, Q("72.450484 mm")))
sketch2.addConstraint(Sketcher.Constraint("DistanceY", 4, 2, 4, 1, Q("6.893245 mm")))
sketch2.addConstraint(Sketcher.Constraint("DistanceY", 28, 1, 28, 2, Q("36.091934 mm")))
sketch2.addConstraint(Sketcher.Constraint("DistanceY", 40, 1, 40, 2, Q("23.157705 mm")))
sketch2.addConstraint(Sketcher.Constraint("DistanceX", 22, 3, -1, 1, Q("101.153108 mm")))
sketch2.addConstraint(Sketcher.Constraint("DistanceX", -1, 1, 33, 3, Q("26.162848 mm")))
sketch2.addConstraint(Sketcher.Constraint("DistanceX", 38, 3, -1, 1, Q("103.975651 mm")))
sketch2.addConstraint(Sketcher.Constraint("DistanceY", -1, 1, 38, 3, Q("26.789608 mm")))
sketch2.addConstraint(Sketcher.Constraint("DistanceX", -1, 1, 46, 3, Q("25.237152 mm")))
sketch2.addConstraint(Sketcher.Constraint("DistanceY", -1, 1, 46, 3, Q("33.766352 mm")))
sketch2.addConstraint(Sketcher.Constraint("DistanceX", -1, 1, 6, 2, Q("12.305611 mm")))
sketch2.addConstraint(Sketcher.Constraint("DistanceY", 18, 2, -1, 1, Q("41.573759 mm")))
sketch2.addConstraint(Sketcher.Constraint("DistanceY", -1, 1, 44, 2, Q("17.970568 mm")))
sketch2.addConstraint(Sketcher.Constraint("DistanceY", 9, 3, 33, 3, Q("13.93794 mm")))
sketch2.addConstraint(Sketcher.Constraint("DistanceY", 24, 2, 0, 2, Q("29.16204 mm")))
pad2 = doc.addObject("PartDesign::Pad", "Pad001")
body.addObject(pad2)
pad2.Profile = sketch2
pad2.Length = 25

doc.recompute()
